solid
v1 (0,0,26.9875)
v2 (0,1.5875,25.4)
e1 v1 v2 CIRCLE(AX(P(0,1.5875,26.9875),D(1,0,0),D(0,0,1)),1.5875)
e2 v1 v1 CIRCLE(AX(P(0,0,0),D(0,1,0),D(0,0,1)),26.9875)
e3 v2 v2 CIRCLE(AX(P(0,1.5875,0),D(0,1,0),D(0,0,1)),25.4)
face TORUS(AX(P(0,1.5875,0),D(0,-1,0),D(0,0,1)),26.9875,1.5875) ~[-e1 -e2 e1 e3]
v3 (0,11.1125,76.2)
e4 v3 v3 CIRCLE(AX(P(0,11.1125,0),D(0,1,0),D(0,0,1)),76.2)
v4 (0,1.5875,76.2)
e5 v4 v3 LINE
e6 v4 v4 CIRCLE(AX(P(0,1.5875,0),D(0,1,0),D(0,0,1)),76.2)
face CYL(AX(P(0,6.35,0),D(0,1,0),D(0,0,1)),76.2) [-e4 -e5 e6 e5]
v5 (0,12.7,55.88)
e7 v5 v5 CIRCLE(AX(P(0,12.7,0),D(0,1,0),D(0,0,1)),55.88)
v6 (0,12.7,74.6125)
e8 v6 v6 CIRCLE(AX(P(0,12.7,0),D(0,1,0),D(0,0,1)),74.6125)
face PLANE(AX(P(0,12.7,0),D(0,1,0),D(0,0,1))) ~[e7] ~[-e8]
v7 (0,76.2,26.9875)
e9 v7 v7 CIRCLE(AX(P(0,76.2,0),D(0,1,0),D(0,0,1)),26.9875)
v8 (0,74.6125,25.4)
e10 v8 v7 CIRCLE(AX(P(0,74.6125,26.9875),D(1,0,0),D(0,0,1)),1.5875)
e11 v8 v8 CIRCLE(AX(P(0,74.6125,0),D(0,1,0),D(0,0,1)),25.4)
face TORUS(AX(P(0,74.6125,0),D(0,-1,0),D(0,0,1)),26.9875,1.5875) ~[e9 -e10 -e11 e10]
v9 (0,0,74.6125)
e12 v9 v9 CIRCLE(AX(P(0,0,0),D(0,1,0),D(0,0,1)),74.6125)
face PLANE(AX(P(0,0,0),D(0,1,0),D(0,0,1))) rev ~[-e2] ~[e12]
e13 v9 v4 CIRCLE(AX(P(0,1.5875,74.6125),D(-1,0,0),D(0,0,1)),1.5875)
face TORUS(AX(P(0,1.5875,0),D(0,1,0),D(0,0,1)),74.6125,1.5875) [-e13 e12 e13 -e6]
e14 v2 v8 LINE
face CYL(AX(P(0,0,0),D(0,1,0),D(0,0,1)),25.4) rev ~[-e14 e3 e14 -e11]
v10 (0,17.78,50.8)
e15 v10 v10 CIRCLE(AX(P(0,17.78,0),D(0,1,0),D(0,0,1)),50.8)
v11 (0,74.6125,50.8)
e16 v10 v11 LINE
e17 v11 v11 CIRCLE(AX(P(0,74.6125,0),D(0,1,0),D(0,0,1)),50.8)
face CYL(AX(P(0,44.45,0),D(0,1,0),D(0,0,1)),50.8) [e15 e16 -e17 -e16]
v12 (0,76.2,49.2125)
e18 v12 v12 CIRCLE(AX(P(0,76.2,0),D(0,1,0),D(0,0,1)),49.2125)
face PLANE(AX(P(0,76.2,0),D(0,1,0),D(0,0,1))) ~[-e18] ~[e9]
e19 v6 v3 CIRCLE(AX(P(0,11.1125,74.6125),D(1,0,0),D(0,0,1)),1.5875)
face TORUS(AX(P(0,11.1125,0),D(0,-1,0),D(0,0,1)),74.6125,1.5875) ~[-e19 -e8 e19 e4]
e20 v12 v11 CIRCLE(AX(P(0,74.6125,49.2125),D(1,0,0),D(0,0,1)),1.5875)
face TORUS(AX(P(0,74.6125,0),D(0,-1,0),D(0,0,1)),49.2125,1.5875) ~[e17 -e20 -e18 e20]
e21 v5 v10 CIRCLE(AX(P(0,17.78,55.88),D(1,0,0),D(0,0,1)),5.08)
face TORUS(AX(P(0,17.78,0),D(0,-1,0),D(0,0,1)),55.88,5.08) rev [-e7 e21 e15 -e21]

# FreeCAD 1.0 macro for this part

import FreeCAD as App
import Part
import Sketcher
Q = App.Units.Quantity


def edges_at(feature, points):
    """Names of the edges that pass closest to the given points."""
    edges = feature.Shape.Edges
    near = lambda p: min(range(len(edges)), key=lambda i: edges[i].distToShape(Part.Vertex(*p))[0])
    return sorted({f"Edge{near(p) + 1}" for p in points})

doc = App.newDocument("Part")
body = doc.addObject("PartDesign::Body", "Body")

# Sketch on YZ plane
sketch1 = body.newObject("Sketcher::SketchObject", "Sketch")
sketch1.AttachmentSupport = (doc.getObject("YZ_Plane"), [""])
sketch1.MapMode = "FlatFace"
sketch1.addGeometry([
    Part.LineSegment(App.Vector(0, 76, 0), App.Vector(0, 25, 0)),  # 0
    Part.LineSegment(App.Vector(0, 25, 0), App.Vector(76, 25, 0)),  # 1
    Part.LineSegment(App.Vector(76, 25, 0), App.Vector(76, 51, 0)),  # 2
    Part.LineSegment(App.Vector(76, 51, 0), App.Vector(13, 51, 0)),  # 3
    Part.LineSegment(App.Vector(13, 51, 0), App.Vector(13, 76, 0)),  # 4
    Part.LineSegment(App.Vector(13, 76, 0), App.Vector(0, 76, 0)),  # 5
], False)
sketch1.addConstraint([
    Sketcher.Constraint("Coincident", 0, 2, 1, 1),
    Sketcher.Constraint("Coincident", 1, 2, 2, 1),
    Sketcher.Constraint("Coincident", 2, 2, 3, 1),
    Sketcher.Constraint("Coincident", 3, 2, 4, 1),
    Sketcher.Constraint("Coincident", 4, 2, 5, 1),
    Sketcher.Constraint("Coincident", 5, 2, 0, 1),
    Sketcher.Constraint("Vertical", 0),
    Sketcher.Constraint("Horizontal", 1),
    Sketcher.Constraint("Vertical", 2),
    Sketcher.Constraint("Horizontal", 3),
    Sketcher.Constraint("Vertical", 4),
    Sketcher.Constraint("Horizontal", 5),
    Sketcher.Constraint("PointOnObject", 0, 2, -2),
    Sketcher.Constraint("Equal", 2, 4),
    Sketcher.Constraint("DistanceX", 1, 1, 1, 2, Q("3 in")),
    Sketcher.Constraint("DistanceY", 0, 2, 0, 1, Q("2 in")),
    Sketcher.Constraint("DistanceX", 3, 2, 3, 1, Q("2.5 in")),
    Sketcher.Constraint("DistanceY", -1, 1, 0, 2, Q("1 in")),
])
revolution = body.newObject("PartDesign::Revolution", "Revolution")
revolution.Profile = sketch1
revolution.ReferenceAxis = (sketch1, ["H_Axis"])
revolution.Angle = 360
doc.recompute()

fillet = body.newObject("PartDesign::Fillet", "Fillet")
fillet.Base = (revolution, edges_at(revolution, [
    (0, 12.7, -76.2),
    (0, 0, -76.2),
    (0, 76.2, -50.8),
    (0, 76.2, -25.4),
    (0, 0, -25.4),
]))
fillet.Radius = Q("0.0625 in")
doc.recompute()

fillet2 = body.newObject("PartDesign::Fillet", "Fillet001")
fillet2.Base = (fillet, edges_at(fillet, [(0, 12.7, -50.8)]))
fillet2.Radius = Q("0.2 in")

doc.recompute()
